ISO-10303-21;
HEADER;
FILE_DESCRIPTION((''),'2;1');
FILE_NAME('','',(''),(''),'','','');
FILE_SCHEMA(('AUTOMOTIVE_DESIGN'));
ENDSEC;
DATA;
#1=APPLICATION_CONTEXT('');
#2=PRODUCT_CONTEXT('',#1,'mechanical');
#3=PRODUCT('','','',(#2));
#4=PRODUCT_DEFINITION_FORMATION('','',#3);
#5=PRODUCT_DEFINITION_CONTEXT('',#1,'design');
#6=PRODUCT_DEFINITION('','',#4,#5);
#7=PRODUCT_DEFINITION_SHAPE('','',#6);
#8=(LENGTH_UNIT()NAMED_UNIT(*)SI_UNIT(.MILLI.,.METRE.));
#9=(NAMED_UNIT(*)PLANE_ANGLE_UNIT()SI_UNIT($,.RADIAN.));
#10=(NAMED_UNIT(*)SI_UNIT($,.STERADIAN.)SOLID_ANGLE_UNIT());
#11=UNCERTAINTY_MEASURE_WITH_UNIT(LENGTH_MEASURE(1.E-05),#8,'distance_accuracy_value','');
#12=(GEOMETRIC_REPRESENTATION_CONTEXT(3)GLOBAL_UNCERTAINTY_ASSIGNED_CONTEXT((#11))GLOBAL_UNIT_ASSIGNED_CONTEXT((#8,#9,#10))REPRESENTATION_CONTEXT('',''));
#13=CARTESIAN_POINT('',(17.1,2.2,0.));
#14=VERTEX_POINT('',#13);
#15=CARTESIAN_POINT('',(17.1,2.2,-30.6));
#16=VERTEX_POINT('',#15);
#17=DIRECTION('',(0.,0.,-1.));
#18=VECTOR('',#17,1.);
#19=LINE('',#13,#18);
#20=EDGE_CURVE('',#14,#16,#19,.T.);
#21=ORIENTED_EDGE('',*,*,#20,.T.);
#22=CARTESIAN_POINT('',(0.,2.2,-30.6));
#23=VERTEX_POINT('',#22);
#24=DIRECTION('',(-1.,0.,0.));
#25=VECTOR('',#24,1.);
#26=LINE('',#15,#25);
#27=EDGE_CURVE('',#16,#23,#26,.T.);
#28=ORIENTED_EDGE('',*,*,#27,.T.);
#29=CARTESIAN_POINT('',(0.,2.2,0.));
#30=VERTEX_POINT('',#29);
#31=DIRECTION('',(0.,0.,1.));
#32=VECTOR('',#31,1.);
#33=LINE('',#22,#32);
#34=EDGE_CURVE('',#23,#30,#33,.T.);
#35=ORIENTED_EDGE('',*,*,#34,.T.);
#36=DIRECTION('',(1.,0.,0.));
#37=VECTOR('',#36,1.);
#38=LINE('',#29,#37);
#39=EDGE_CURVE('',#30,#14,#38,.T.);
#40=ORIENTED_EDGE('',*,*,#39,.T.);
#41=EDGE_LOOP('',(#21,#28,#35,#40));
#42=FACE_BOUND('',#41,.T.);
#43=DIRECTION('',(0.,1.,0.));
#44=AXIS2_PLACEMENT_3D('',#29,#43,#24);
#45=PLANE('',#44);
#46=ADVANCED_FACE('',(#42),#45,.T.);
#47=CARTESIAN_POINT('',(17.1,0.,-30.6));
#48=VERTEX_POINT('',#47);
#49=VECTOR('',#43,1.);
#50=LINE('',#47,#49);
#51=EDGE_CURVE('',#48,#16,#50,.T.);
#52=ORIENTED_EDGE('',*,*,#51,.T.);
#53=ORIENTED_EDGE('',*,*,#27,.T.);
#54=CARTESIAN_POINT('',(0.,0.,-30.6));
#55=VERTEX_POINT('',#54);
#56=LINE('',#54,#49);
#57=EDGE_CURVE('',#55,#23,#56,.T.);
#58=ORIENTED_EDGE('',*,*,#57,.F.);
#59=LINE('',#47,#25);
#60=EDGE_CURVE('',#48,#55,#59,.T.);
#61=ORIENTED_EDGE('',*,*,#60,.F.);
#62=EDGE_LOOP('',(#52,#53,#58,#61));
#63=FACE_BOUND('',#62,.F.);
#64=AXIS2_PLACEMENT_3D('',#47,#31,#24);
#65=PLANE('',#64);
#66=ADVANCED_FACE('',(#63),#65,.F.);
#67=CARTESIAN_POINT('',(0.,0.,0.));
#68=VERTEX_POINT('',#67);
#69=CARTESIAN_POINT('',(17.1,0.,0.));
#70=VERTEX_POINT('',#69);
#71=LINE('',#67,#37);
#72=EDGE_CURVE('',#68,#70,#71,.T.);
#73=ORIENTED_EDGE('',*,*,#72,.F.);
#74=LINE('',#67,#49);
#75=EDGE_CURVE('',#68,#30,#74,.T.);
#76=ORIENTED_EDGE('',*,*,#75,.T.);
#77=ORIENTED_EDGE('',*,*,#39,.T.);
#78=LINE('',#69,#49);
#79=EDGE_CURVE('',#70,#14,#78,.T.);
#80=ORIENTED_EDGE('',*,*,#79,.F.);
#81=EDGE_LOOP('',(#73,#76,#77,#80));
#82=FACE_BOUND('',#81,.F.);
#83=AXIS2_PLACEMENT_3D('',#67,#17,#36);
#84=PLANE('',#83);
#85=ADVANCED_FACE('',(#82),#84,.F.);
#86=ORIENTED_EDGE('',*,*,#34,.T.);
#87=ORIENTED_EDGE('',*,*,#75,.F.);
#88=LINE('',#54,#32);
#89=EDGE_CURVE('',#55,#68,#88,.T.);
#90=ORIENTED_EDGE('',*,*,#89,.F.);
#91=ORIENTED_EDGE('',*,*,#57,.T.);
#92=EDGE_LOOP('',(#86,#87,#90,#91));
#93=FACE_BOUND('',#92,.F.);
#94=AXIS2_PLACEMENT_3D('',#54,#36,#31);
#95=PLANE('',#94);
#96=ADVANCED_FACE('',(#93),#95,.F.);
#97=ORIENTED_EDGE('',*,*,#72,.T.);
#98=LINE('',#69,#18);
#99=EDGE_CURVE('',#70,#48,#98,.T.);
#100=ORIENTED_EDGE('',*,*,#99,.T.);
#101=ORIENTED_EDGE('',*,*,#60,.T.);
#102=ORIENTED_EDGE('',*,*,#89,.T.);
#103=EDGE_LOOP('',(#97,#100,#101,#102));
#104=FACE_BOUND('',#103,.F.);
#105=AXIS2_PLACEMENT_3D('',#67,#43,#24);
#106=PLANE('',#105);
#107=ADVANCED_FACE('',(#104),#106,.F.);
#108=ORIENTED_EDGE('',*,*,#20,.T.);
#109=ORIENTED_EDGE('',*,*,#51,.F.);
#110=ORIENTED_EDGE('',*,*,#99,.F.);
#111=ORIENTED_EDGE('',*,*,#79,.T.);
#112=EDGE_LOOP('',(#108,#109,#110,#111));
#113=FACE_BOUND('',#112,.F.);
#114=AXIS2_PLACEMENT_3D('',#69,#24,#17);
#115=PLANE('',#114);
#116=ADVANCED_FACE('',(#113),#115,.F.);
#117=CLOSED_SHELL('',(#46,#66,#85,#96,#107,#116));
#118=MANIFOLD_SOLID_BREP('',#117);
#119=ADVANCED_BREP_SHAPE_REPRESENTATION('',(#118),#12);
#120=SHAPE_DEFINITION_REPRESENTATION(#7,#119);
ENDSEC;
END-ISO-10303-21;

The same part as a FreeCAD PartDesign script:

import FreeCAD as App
import Part
import Sketcher

doc = App.newDocument("Part")
body = doc.addObject("PartDesign::Body", "Body")

# Sketch on XZ plane
sketch1 = doc.addObject("Sketcher::SketchObject", "Sketch")
body.addObject(sketch1)
sketch1.AttachmentSupport = (doc.XZ_Plane, [""])
sketch1.MapMode = "FlatFace"
sketch1.addGeometry(Part.LineSegment(App.Vector(0, -31, 0), App.Vector(0, 0, 0)), False)
sketch1.addGeometry(Part.LineSegment(App.Vector(0, 0, 0), App.Vector(17, 0, 0)), False)
sketch1.addGeometry(Part.LineSegment(App.Vector(17, 0, 0), App.Vector(17, -31, 0)), False)
sketch1.addGeometry(Part.LineSegment(App.Vector(17, -31, 0), App.Vector(0, -31, 0)), False)
sketch1.addConstraint(Sketcher.Constraint("Coincident", 0, 2, 1, 1))
sketch1.addConstraint(Sketcher.Constraint("Coincident", 1, 2, 2, 1))
sketch1.addConstraint(Sketcher.Constraint("Coincident", 2, 2, 3, 1))
sketch1.addConstraint(Sketcher.Constraint("Coincident", 3, 2, 0, 1))
sketch1.addConstraint(Sketcher.Constraint("Vertical", 0))
sketch1.addConstraint(Sketcher.Constraint("Horizontal", 1))
sketch1.addConstraint(Sketcher.Constraint("Vertical", 2))
sketch1.addConstraint(Sketcher.Constraint("Horizontal", 3))
sketch1.addConstraint(Sketcher.Constraint("Coincident", 0, 2, -1, 1))
sketch1.addConstraint(Sketcher.Constraint("DistanceX", 1, 1, 1, 2, 17.1))
sketch1.addConstraint(Sketcher.Constraint("DistanceY", 0, 1, 0, 2, 30.6))
pad1 = doc.addObject("PartDesign::Pad", "Pad")
body.addObject(pad1)
pad1.Profile = sketch1
pad1.Length = 2.2
pad1.Reversed = True

doc.recompute()
